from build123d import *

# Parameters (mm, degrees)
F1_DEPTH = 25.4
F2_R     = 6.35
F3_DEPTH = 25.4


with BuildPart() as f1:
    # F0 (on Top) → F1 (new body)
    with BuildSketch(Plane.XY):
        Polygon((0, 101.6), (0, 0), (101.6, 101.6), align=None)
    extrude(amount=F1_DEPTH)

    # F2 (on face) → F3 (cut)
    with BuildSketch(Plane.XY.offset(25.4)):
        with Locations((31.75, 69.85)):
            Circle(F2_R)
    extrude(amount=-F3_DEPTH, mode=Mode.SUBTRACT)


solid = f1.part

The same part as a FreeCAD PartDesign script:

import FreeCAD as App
import Part
import Sketcher
Q = App.Units.Quantity


def add_polygon(sketch, points):
    """Adds a closed chain of lines whose ends are joined by coincident constraints."""
    first, n = sketch.GeometryCount, len(points)
    for a, b in zip(points, points[1:] + points[:1]):
        sketch.addGeometry(Part.LineSegment(App.Vector(*a, 0), App.Vector(*b, 0)), False)
    for i in range(n):
        sketch.addConstraint(Sketcher.Constraint("Coincident", first + i, 2, first + (i + 1) % n, 1))

doc = App.newDocument("Part")
body = doc.addObject("PartDesign::Body", "Body")

sketch1 = body.newObject("Sketcher::SketchObject", "Sketch")
sketch1.AttachmentSupport = (doc.getObject("XY_Plane"), [""])
sketch1.MapMode = "FlatFace"
add_polygon(sketch1, [(0, 102), (0, 0), (102, 102)])
sketch1.addConstraint([
    Sketcher.Constraint("Vertical", 0),
    Sketcher.Constraint("Horizontal", 2),
    Sketcher.Constraint("Coincident", 0, 2, -1, 1),
    Sketcher.Constraint("Equal", 2, 0),
    Sketcher.Constraint("DistanceX", 2, 2, 2, 1, Q("4 in")),
])
pad1 = body.newObject("PartDesign::Pad", "Pad")
pad1.Profile = sketch1
pad1.Length = Q("1 in")

sketch2 = body.newObject("Sketcher::SketchObject", "Sketch001")
sketch2.AttachmentSupport = (doc.getObject("XY_Plane"), [""])
sketch2.MapMode = "FlatFace"
sketch2.AttachmentOffset = App.Placement(App.Vector(0, 0, 1 * 25.4), App.Rotation())
sketch2.addGeometry(Part.Circle(App.Vector(32, 70, 0), App.Vector(0, 0, 1), 6), False)
sketch2.addConstraint([
    Sketcher.Constraint("Diameter", 0, Q("0.5 in")),
    Sketcher.Constraint("DistanceX", -1, 1, 0, 3, Q("1.25 in")),
    Sketcher.Constraint("DistanceY", -1, 1, 0, 3, Q("2.75 in")),
])
pocket1 = body.newObject("PartDesign::Pocket", "Pocket")
pocket1.Profile = sketch2
pocket1.Length = Q("1 in")

doc.recompute()
